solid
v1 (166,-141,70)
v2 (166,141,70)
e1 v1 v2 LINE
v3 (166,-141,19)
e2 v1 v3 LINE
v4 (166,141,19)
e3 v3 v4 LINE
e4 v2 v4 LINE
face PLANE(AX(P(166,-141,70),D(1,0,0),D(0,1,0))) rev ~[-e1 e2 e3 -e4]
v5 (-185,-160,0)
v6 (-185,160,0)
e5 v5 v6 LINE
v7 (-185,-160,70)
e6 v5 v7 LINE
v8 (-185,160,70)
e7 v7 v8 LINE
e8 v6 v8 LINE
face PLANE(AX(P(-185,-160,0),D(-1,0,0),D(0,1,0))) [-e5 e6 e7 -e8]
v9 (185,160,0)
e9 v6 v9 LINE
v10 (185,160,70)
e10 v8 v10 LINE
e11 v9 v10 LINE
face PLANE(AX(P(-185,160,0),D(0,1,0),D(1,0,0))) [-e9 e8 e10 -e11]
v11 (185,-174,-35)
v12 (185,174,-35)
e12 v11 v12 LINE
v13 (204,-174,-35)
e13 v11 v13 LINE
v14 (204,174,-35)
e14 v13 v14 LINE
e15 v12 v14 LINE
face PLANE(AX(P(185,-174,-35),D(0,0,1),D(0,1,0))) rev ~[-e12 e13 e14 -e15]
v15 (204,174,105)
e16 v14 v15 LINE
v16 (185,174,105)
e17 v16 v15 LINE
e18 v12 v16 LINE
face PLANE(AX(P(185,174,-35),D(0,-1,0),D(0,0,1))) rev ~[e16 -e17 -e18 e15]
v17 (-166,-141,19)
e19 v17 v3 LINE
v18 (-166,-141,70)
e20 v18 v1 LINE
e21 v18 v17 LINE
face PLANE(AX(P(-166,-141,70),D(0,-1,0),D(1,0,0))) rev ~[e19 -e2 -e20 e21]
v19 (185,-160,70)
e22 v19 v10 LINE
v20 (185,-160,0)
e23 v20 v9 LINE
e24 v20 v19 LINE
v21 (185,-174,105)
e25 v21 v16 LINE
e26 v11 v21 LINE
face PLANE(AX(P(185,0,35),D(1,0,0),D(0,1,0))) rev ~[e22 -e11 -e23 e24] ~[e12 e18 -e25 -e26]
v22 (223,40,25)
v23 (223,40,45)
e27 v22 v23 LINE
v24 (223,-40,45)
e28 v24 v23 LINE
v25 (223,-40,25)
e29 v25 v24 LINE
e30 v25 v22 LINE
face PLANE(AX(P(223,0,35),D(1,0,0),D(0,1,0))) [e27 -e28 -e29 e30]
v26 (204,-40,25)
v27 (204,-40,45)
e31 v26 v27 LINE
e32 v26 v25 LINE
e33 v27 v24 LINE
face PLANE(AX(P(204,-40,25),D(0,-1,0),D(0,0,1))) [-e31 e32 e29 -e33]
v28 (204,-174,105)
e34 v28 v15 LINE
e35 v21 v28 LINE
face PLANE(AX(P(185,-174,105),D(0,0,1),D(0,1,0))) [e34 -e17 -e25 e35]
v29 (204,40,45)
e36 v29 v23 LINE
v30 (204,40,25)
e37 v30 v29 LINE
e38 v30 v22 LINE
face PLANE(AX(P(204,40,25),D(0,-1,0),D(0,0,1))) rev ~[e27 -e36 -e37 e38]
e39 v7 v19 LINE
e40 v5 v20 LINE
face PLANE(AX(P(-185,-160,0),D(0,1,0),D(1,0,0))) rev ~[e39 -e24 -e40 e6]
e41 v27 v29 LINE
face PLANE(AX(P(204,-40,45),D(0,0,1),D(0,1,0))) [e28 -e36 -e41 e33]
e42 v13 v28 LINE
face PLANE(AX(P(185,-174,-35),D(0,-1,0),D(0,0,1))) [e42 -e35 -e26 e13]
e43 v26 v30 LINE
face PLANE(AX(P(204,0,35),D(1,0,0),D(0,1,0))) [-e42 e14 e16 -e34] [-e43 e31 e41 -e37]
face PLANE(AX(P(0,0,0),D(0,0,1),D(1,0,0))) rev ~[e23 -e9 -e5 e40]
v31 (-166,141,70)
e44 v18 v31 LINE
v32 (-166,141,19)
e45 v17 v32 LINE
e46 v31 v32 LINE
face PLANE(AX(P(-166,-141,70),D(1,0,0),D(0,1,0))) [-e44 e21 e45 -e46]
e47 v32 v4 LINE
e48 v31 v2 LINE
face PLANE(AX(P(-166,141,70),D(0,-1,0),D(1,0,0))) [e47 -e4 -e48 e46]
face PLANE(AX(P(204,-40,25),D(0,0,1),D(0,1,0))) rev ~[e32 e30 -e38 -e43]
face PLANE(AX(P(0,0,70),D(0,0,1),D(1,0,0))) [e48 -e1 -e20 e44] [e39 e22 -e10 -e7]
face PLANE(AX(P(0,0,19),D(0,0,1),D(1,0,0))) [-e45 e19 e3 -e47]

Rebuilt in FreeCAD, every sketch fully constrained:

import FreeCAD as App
import Part
import Sketcher

V = App.Vector


def add_polygon(sketch, points):
    """Adds a closed chain of lines whose ends are joined by coincident constraints."""
    first, n = sketch.GeometryCount, len(points)
    for a, b in zip(points, points[1:] + points[:1]):
        sketch.addGeometry(Part.LineSegment(App.Vector(*a, 0), App.Vector(*b, 0)), False)
    for i in range(n):
        sketch.addConstraint(Sketcher.Constraint("Coincident", first + i, 2, first + (i + 1) % n, 1))

doc = App.newDocument("Part")
body = doc.addObject("PartDesign::Body", "Body")

# Sketch on XY plane
sketch1 = body.newObject("Sketcher::SketchObject", "Sketch")
sketch1.AttachmentSupport = (doc.getObject("XY_Plane"), [""])
sketch1.MapMode = "FlatFace"
add_polygon(sketch1, [(-185, 160), (-185, -160), (185, -160), (185, 160)])  # lines 0-3
sketch1.addConstraint([
    Sketcher.Constraint("Vertical", 0),
    Sketcher.Constraint("Horizontal", 1),
    Sketcher.Constraint("Vertical", 2),
    Sketcher.Constraint("Horizontal", 3),
    Sketcher.Constraint("Symmetric", 0, 2, 2, 2, -1, 1),
    Sketcher.Constraint("DistanceX", 1, 1, 1, 2, 370.0),
    Sketcher.Constraint("DistanceY", 0, 2, 0, 1, 320.0),
])
pad1 = body.newObject("PartDesign::Pad", "Pad")
pad1.Profile = sketch1
pad1.Length = 70

# Sketch on XY plane
sketch2 = body.newObject("Sketcher::SketchObject", "Sketch001")
sketch2.AttachmentSupport = (doc.getObject("XY_Plane"), [""])
sketch2.MapMode = "FlatFace"
sketch2.AttachmentOffset = App.Placement(V(0, 0, 70), App.Rotation())
add_polygon(sketch2, [(-166, 141), (-166, -141), (166, -141), (166, 141)])  # lines 0-3
sketch2.addConstraint([
    Sketcher.Constraint("Vertical", 0),
    Sketcher.Constraint("Horizontal", 1),
    Sketcher.Constraint("Vertical", 2),
    Sketcher.Constraint("Horizontal", 3),
    Sketcher.Constraint("Symmetric", 0, 2, 2, 2, -1, 1),
    Sketcher.Constraint("DistanceX", 1, 1, 1, 2, 332.0),
    Sketcher.Constraint("DistanceY", 0, 2, 0, 1, 282.0),
])
pocket1 = body.newObject("PartDesign::Pocket", "Pocket")
pocket1.Profile = sketch2
pocket1.Length = 51

# Sketch on YZ plane
sketch3 = body.newObject("Sketcher::SketchObject", "Sketch002")
sketch3.AttachmentSupport = (doc.getObject("YZ_Plane"), [""])
sketch3.MapMode = "FlatFace"
sketch3.AttachmentOffset = App.Placement(V(0, 0, 185), App.Rotation())
add_polygon(sketch3, [(-174, 105), (-174, -35), (174, -35), (174, 105)])  # lines 0-3
sketch3.addConstraint([
    Sketcher.Constraint("Vertical", 0),
    Sketcher.Constraint("Horizontal", 1),
    Sketcher.Constraint("Vertical", 2),
    Sketcher.Constraint("Horizontal", 3),
    Sketcher.Constraint("DistanceX", 1, 1, 1, 2, 348.0),
    Sketcher.Constraint("DistanceY", 0, 2, 0, 1, 140.0),
    Sketcher.Constraint("DistanceX", 0, 2, -1, 1, 174.0),
    Sketcher.Constraint("DistanceY", 0, 2, -1, 1, 35.0),
])
pad2 = body.newObject("PartDesign::Pad", "Pad001")
pad2.Profile = sketch3
pad2.Length = 19

# Sketch on YZ plane
sketch4 = body.newObject("Sketcher::SketchObject", "Sketch003")
sketch4.AttachmentSupport = (doc.getObject("YZ_Plane"), [""])
sketch4.MapMode = "FlatFace"
sketch4.AttachmentOffset = App.Placement(V(0, 0, 204), App.Rotation())
add_polygon(sketch4, [(-40, 45), (-40, 25), (40, 25), (40, 45)])  # lines 0-3
sketch4.addConstraint([
    Sketcher.Constraint("Vertical", 0),
    Sketcher.Constraint("Horizontal", 1),
    Sketcher.Constraint("Vertical", 2),
    Sketcher.Constraint("Horizontal", 3),
    Sketcher.Constraint("DistanceX", 1, 1, 1, 2, 80.0),
    Sketcher.Constraint("DistanceY", 0, 2, 0, 1, 20.0),
    Sketcher.Constraint("DistanceX", 0, 2, -1, 1, 40.0),
    Sketcher.Constraint("DistanceY", -1, 1, 0, 2, 25.0),
])
pad3 = body.newObject("PartDesign::Pad", "Pad002")
pad3.Profile = sketch4
pad3.Length = 19

doc.recompute()
